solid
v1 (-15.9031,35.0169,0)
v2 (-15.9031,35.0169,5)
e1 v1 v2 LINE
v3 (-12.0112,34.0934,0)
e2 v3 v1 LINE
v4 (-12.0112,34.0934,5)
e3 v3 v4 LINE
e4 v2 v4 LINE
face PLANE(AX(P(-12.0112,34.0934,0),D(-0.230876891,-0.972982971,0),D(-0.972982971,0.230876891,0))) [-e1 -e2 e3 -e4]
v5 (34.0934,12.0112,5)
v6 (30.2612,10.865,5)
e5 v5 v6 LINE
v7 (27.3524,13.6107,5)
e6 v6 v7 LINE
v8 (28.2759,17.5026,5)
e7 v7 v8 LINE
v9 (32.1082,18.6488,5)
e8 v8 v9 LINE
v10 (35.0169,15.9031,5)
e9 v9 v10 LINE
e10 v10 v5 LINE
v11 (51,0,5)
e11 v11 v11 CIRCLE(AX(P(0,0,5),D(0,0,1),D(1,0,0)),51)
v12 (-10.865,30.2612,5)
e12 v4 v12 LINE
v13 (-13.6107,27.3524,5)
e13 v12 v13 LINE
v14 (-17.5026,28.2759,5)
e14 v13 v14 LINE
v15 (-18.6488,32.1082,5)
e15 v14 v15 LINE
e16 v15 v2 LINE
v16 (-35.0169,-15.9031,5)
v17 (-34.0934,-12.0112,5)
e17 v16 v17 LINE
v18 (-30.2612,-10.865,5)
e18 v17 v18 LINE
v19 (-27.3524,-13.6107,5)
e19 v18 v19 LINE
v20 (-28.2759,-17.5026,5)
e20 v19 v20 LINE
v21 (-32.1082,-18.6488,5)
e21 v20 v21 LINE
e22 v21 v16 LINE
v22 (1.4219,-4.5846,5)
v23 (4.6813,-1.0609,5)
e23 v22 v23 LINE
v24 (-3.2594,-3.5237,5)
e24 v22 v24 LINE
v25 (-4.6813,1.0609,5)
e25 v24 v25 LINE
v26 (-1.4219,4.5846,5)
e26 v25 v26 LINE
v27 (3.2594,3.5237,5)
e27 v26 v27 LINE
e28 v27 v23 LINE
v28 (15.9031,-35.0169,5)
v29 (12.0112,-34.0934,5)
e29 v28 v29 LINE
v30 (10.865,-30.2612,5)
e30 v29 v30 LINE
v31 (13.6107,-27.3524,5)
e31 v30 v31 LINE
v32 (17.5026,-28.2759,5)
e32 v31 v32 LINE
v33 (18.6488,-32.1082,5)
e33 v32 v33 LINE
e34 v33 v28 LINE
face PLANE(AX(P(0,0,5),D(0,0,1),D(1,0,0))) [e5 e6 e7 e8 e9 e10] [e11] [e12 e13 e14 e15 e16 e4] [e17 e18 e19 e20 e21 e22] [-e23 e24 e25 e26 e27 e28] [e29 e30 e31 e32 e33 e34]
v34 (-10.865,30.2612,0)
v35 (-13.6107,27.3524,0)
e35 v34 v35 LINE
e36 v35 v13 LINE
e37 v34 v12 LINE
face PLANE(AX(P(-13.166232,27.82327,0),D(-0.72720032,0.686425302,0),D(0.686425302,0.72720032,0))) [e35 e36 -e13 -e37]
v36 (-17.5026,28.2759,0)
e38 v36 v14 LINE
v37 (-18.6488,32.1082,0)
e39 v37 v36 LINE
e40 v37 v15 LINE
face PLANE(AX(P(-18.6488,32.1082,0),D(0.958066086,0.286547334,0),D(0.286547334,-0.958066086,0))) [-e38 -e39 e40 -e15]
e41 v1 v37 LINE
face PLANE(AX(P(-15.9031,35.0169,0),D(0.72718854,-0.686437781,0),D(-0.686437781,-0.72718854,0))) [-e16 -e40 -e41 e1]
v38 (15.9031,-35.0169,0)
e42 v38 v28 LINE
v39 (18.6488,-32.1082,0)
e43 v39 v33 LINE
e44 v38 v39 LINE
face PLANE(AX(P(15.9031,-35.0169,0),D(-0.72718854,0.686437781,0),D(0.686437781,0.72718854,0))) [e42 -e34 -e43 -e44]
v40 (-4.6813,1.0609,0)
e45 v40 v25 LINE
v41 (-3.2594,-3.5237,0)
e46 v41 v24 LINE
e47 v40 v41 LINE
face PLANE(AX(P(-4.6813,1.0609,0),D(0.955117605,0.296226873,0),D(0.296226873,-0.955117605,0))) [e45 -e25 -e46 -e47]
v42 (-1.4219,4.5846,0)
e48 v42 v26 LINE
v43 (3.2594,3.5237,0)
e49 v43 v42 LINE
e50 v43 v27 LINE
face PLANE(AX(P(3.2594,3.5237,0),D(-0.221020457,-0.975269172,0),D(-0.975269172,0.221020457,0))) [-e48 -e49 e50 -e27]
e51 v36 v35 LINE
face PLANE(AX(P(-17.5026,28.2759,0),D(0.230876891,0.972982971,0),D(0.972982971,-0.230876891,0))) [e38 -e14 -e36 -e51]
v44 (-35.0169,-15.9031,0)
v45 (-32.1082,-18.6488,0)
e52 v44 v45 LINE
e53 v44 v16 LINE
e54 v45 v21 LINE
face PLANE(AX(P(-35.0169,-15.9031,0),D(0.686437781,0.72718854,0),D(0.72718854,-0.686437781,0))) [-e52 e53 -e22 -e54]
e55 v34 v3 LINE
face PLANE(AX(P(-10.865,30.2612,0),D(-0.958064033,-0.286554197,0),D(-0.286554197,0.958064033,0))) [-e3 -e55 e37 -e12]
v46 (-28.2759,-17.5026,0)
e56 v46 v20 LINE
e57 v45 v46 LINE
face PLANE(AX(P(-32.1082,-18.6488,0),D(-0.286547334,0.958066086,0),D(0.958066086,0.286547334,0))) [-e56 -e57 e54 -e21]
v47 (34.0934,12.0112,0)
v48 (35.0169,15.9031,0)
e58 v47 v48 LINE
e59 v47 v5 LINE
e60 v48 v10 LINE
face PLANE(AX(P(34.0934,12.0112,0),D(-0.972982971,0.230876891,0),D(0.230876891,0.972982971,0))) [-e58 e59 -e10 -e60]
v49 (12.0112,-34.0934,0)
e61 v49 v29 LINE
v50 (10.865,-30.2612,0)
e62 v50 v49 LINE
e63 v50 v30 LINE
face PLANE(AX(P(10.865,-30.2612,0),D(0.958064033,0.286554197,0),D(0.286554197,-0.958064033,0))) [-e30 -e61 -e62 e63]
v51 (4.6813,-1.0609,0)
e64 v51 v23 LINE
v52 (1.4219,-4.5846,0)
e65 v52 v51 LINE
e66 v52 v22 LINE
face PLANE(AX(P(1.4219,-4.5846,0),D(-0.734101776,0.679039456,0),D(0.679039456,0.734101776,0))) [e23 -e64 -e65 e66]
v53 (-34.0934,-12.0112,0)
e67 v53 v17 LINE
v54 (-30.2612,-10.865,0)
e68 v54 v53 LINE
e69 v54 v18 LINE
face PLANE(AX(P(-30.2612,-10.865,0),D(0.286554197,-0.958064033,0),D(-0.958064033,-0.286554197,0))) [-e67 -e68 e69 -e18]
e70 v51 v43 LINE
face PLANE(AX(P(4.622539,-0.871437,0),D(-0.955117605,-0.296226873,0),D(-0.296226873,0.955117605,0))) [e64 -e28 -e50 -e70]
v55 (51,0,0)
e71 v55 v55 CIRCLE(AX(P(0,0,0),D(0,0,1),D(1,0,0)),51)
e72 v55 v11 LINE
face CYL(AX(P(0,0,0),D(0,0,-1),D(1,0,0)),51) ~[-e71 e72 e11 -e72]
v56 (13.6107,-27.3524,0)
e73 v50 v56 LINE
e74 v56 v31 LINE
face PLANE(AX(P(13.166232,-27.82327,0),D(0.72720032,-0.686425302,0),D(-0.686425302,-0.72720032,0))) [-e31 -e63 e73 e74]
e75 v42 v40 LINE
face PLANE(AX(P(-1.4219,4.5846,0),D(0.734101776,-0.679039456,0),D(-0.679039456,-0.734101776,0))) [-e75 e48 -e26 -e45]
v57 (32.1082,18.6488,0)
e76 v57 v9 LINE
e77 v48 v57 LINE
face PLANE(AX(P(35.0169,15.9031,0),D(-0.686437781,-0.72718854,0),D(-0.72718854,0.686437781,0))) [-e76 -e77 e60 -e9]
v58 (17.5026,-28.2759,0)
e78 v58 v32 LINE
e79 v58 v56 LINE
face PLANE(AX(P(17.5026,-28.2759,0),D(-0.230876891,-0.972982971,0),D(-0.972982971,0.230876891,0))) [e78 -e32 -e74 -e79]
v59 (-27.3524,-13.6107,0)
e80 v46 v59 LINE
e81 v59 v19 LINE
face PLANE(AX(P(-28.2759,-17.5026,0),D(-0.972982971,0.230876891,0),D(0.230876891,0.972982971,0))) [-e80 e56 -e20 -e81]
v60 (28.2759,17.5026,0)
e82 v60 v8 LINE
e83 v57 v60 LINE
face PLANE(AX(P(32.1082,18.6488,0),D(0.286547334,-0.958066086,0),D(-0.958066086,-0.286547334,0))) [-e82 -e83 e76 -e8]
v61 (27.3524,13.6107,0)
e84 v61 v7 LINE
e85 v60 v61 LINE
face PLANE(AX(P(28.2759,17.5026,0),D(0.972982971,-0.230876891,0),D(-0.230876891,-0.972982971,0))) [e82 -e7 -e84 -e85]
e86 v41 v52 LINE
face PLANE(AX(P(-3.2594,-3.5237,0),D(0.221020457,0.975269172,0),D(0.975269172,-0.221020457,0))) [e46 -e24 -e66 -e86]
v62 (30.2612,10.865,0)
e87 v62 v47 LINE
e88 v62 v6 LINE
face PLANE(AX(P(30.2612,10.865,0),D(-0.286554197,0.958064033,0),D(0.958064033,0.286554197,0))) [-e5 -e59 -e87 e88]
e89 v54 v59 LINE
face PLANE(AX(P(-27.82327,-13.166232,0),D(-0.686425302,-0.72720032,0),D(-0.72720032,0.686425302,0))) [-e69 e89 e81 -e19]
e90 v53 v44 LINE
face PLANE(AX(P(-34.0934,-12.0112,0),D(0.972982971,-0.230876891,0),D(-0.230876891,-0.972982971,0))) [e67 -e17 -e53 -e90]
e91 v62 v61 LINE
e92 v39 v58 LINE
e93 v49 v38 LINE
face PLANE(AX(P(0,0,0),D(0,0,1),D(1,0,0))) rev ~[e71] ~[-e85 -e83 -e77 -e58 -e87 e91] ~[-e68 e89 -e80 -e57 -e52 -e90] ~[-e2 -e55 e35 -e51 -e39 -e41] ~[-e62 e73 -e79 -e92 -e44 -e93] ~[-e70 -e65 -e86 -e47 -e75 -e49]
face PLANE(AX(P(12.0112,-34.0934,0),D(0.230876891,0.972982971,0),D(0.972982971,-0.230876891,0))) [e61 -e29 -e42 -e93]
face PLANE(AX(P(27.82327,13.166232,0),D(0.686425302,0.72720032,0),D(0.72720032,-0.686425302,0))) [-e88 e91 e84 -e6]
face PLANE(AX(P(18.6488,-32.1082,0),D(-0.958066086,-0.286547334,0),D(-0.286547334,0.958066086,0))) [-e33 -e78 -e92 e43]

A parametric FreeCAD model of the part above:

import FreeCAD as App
import Part
import Sketcher

V = App.Vector
Q = App.Units.Quantity

doc = App.newDocument("Part")
params = doc.addObject("Spreadsheet::Sheet", "Params")
for row, (alias, value) in enumerate([
    ("sketch1_diameter", "102 mm"),
    ("sketch1_length", "4.8 mm"),
    ("pad1_length", "5 mm"),
    ("sketch2_length", "4 mm"),
    ("pocket1_length", "25 mm"),
], start=1):
    params.set(f"A{row}", alias)
    params.set(f"B{row}", "=" + value)
    params.setAlias(f"B{row}", alias)

body = doc.addObject("PartDesign::Body", "Body")

sketch1 = doc.addObject("Sketcher::SketchObject", "Sketch")
body.addObject(sketch1)
sketch1.AttachmentSupport = (doc.XY_Plane, [""])
sketch1.MapMode = "FlatFace"
sketch1.addGeometry([
    Part.Circle(V(0, 0, 0), V(0, 0, 1), 51),
    Part.LineSegment(V(3.3, 3.5, 0), V(4.7, -1.1, 0)),
    Part.LineSegment(V(4.7, -1.1, 0), V(1.4, -4.6, 0)),
    Part.LineSegment(V(1.4, -4.6, 0), V(-3.3, -3.5, 0)),
    Part.LineSegment(V(-3.3, -3.5, 0), V(-4.7, 1.1, 0)),
    Part.LineSegment(V(-4.7, 1.1, 0), V(-1.4, 4.6, 0)),
    Part.LineSegment(V(-1.4, 4.6, 0), V(3.3, 3.5, 0)),
], False)
sketch1.addConstraint([
    Sketcher.Constraint("Coincident", 1, 2, 2, 1),
    Sketcher.Constraint("Coincident", 2, 2, 3, 1),
    Sketcher.Constraint("Coincident", 3, 2, 4, 1),
    Sketcher.Constraint("Coincident", 4, 2, 5, 1),
    Sketcher.Constraint("Coincident", 5, 2, 6, 1),
    Sketcher.Constraint("Coincident", 6, 2, 1, 1),
    Sketcher.Constraint("Coincident", 0, 3, -1, 1),
    Sketcher.Constraint("Symmetric", 1, 2, 4, 2, -1, 1),
    Sketcher.Constraint("Symmetric", 2, 2, 5, 2, -1, 1),
    Sketcher.Constraint("Symmetric", 3, 2, 6, 2, -1, 1),
    Sketcher.Constraint("Equal", 1, 2),
    Sketcher.Constraint("Equal", 2, 3),
    Sketcher.Constraint("Diameter", 0, 102.0),
    Sketcher.Constraint("Distance", 1, 4.8),
    Sketcher.Constraint("Angle", 1, Q("-72.7689 deg")),
    Sketcher.Constraint("Angle", 3, Q("167.231 deg")),
    Sketcher.Constraint("DistanceY", 1, 2, -1, 1, 1.061),
])
sketch1.setExpression("Constraints[12]", "Params.sketch1_diameter")
sketch1.setExpression("Constraints[13]", "Params.sketch1_length")
pad1 = doc.addObject("PartDesign::Pad", "Pad")
body.addObject(pad1)
pad1.Profile = sketch1
pad1.setExpression("Length", "Params.pad1_length")

sketch2 = doc.addObject("Sketcher::SketchObject", "Sketch001")
body.addObject(sketch2)
sketch2.AttachmentSupport = (doc.XY_Plane, [""])
sketch2.MapMode = "FlatFace"
sketch2.addGeometry([
    Part.LineSegment(V(-35, -15.9, 0), V(-32.1, -18.6, 0)),
    Part.LineSegment(V(-32.1, -18.6, 0), V(-28.3, -17.5, 0)),
    Part.LineSegment(V(-28.3, -17.5, 0), V(-27.4, -13.6, 0)),
    Part.LineSegment(V(-27.4, -13.6, 0), V(-30.3, -10.9, 0)),
    Part.LineSegment(V(-30.3, -10.9, 0), V(-34.1, -12, 0)),
    Part.LineSegment(V(-34.1, -12, 0), V(-35, -15.9, 0)),
], False)
sketch2.addConstraint([
    Sketcher.Constraint("Coincident", 0, 2, 1, 1),
    Sketcher.Constraint("Coincident", 1, 2, 2, 1),
    Sketcher.Constraint("Coincident", 2, 2, 3, 1),
    Sketcher.Constraint("Coincident", 3, 2, 4, 1),
    Sketcher.Constraint("Coincident", 4, 2, 5, 1),
    Sketcher.Constraint("Coincident", 5, 2, 0, 1),
    Sketcher.Constraint("Parallel", 0, 3),
    Sketcher.Constraint("Parallel", 1, 4),
    Sketcher.Constraint("Parallel", 2, 5),
    Sketcher.Constraint("Equal", 0, 1),
    Sketcher.Constraint("Equal", 1, 2),
    Sketcher.Constraint("Equal", 2, 3),
    Sketcher.Constraint("Distance", 0, 4.0),
    Sketcher.Constraint("DistanceX", 1, 2, -1, 1, 28.276),
    Sketcher.Constraint("DistanceY", 3, 2, -1, 1, 10.865),
    Sketcher.Constraint("DistanceX", 5, 2, -1, 1, 35.017),
    Sketcher.Constraint("DistanceY", 5, 2, -1, 1, 15.903),
    Sketcher.Constraint("DistanceY", 1, 2, 2, 2, 3.892),
])
sketch2.setExpression("Constraints[12]", "Params.sketch2_length")
pocket1 = doc.addObject("PartDesign::Pocket", "Pocket")
body.addObject(pocket1)
pocket1.Profile = sketch2
pocket1.setExpression("Length", "Params.pocket1_length")
pocket1.Reversed = True
doc.recompute()

polarpattern = doc.addObject("PartDesign::PolarPattern", "PolarPattern")
body.addObject(polarpattern)
polarpattern.Originals = [pocket1]
polarpattern.Axis = (doc.Z_Axis, [""])
polarpattern.Angle = 360
polarpattern.Occurrences = 4
body.Tip = polarpattern

doc.recompute()
